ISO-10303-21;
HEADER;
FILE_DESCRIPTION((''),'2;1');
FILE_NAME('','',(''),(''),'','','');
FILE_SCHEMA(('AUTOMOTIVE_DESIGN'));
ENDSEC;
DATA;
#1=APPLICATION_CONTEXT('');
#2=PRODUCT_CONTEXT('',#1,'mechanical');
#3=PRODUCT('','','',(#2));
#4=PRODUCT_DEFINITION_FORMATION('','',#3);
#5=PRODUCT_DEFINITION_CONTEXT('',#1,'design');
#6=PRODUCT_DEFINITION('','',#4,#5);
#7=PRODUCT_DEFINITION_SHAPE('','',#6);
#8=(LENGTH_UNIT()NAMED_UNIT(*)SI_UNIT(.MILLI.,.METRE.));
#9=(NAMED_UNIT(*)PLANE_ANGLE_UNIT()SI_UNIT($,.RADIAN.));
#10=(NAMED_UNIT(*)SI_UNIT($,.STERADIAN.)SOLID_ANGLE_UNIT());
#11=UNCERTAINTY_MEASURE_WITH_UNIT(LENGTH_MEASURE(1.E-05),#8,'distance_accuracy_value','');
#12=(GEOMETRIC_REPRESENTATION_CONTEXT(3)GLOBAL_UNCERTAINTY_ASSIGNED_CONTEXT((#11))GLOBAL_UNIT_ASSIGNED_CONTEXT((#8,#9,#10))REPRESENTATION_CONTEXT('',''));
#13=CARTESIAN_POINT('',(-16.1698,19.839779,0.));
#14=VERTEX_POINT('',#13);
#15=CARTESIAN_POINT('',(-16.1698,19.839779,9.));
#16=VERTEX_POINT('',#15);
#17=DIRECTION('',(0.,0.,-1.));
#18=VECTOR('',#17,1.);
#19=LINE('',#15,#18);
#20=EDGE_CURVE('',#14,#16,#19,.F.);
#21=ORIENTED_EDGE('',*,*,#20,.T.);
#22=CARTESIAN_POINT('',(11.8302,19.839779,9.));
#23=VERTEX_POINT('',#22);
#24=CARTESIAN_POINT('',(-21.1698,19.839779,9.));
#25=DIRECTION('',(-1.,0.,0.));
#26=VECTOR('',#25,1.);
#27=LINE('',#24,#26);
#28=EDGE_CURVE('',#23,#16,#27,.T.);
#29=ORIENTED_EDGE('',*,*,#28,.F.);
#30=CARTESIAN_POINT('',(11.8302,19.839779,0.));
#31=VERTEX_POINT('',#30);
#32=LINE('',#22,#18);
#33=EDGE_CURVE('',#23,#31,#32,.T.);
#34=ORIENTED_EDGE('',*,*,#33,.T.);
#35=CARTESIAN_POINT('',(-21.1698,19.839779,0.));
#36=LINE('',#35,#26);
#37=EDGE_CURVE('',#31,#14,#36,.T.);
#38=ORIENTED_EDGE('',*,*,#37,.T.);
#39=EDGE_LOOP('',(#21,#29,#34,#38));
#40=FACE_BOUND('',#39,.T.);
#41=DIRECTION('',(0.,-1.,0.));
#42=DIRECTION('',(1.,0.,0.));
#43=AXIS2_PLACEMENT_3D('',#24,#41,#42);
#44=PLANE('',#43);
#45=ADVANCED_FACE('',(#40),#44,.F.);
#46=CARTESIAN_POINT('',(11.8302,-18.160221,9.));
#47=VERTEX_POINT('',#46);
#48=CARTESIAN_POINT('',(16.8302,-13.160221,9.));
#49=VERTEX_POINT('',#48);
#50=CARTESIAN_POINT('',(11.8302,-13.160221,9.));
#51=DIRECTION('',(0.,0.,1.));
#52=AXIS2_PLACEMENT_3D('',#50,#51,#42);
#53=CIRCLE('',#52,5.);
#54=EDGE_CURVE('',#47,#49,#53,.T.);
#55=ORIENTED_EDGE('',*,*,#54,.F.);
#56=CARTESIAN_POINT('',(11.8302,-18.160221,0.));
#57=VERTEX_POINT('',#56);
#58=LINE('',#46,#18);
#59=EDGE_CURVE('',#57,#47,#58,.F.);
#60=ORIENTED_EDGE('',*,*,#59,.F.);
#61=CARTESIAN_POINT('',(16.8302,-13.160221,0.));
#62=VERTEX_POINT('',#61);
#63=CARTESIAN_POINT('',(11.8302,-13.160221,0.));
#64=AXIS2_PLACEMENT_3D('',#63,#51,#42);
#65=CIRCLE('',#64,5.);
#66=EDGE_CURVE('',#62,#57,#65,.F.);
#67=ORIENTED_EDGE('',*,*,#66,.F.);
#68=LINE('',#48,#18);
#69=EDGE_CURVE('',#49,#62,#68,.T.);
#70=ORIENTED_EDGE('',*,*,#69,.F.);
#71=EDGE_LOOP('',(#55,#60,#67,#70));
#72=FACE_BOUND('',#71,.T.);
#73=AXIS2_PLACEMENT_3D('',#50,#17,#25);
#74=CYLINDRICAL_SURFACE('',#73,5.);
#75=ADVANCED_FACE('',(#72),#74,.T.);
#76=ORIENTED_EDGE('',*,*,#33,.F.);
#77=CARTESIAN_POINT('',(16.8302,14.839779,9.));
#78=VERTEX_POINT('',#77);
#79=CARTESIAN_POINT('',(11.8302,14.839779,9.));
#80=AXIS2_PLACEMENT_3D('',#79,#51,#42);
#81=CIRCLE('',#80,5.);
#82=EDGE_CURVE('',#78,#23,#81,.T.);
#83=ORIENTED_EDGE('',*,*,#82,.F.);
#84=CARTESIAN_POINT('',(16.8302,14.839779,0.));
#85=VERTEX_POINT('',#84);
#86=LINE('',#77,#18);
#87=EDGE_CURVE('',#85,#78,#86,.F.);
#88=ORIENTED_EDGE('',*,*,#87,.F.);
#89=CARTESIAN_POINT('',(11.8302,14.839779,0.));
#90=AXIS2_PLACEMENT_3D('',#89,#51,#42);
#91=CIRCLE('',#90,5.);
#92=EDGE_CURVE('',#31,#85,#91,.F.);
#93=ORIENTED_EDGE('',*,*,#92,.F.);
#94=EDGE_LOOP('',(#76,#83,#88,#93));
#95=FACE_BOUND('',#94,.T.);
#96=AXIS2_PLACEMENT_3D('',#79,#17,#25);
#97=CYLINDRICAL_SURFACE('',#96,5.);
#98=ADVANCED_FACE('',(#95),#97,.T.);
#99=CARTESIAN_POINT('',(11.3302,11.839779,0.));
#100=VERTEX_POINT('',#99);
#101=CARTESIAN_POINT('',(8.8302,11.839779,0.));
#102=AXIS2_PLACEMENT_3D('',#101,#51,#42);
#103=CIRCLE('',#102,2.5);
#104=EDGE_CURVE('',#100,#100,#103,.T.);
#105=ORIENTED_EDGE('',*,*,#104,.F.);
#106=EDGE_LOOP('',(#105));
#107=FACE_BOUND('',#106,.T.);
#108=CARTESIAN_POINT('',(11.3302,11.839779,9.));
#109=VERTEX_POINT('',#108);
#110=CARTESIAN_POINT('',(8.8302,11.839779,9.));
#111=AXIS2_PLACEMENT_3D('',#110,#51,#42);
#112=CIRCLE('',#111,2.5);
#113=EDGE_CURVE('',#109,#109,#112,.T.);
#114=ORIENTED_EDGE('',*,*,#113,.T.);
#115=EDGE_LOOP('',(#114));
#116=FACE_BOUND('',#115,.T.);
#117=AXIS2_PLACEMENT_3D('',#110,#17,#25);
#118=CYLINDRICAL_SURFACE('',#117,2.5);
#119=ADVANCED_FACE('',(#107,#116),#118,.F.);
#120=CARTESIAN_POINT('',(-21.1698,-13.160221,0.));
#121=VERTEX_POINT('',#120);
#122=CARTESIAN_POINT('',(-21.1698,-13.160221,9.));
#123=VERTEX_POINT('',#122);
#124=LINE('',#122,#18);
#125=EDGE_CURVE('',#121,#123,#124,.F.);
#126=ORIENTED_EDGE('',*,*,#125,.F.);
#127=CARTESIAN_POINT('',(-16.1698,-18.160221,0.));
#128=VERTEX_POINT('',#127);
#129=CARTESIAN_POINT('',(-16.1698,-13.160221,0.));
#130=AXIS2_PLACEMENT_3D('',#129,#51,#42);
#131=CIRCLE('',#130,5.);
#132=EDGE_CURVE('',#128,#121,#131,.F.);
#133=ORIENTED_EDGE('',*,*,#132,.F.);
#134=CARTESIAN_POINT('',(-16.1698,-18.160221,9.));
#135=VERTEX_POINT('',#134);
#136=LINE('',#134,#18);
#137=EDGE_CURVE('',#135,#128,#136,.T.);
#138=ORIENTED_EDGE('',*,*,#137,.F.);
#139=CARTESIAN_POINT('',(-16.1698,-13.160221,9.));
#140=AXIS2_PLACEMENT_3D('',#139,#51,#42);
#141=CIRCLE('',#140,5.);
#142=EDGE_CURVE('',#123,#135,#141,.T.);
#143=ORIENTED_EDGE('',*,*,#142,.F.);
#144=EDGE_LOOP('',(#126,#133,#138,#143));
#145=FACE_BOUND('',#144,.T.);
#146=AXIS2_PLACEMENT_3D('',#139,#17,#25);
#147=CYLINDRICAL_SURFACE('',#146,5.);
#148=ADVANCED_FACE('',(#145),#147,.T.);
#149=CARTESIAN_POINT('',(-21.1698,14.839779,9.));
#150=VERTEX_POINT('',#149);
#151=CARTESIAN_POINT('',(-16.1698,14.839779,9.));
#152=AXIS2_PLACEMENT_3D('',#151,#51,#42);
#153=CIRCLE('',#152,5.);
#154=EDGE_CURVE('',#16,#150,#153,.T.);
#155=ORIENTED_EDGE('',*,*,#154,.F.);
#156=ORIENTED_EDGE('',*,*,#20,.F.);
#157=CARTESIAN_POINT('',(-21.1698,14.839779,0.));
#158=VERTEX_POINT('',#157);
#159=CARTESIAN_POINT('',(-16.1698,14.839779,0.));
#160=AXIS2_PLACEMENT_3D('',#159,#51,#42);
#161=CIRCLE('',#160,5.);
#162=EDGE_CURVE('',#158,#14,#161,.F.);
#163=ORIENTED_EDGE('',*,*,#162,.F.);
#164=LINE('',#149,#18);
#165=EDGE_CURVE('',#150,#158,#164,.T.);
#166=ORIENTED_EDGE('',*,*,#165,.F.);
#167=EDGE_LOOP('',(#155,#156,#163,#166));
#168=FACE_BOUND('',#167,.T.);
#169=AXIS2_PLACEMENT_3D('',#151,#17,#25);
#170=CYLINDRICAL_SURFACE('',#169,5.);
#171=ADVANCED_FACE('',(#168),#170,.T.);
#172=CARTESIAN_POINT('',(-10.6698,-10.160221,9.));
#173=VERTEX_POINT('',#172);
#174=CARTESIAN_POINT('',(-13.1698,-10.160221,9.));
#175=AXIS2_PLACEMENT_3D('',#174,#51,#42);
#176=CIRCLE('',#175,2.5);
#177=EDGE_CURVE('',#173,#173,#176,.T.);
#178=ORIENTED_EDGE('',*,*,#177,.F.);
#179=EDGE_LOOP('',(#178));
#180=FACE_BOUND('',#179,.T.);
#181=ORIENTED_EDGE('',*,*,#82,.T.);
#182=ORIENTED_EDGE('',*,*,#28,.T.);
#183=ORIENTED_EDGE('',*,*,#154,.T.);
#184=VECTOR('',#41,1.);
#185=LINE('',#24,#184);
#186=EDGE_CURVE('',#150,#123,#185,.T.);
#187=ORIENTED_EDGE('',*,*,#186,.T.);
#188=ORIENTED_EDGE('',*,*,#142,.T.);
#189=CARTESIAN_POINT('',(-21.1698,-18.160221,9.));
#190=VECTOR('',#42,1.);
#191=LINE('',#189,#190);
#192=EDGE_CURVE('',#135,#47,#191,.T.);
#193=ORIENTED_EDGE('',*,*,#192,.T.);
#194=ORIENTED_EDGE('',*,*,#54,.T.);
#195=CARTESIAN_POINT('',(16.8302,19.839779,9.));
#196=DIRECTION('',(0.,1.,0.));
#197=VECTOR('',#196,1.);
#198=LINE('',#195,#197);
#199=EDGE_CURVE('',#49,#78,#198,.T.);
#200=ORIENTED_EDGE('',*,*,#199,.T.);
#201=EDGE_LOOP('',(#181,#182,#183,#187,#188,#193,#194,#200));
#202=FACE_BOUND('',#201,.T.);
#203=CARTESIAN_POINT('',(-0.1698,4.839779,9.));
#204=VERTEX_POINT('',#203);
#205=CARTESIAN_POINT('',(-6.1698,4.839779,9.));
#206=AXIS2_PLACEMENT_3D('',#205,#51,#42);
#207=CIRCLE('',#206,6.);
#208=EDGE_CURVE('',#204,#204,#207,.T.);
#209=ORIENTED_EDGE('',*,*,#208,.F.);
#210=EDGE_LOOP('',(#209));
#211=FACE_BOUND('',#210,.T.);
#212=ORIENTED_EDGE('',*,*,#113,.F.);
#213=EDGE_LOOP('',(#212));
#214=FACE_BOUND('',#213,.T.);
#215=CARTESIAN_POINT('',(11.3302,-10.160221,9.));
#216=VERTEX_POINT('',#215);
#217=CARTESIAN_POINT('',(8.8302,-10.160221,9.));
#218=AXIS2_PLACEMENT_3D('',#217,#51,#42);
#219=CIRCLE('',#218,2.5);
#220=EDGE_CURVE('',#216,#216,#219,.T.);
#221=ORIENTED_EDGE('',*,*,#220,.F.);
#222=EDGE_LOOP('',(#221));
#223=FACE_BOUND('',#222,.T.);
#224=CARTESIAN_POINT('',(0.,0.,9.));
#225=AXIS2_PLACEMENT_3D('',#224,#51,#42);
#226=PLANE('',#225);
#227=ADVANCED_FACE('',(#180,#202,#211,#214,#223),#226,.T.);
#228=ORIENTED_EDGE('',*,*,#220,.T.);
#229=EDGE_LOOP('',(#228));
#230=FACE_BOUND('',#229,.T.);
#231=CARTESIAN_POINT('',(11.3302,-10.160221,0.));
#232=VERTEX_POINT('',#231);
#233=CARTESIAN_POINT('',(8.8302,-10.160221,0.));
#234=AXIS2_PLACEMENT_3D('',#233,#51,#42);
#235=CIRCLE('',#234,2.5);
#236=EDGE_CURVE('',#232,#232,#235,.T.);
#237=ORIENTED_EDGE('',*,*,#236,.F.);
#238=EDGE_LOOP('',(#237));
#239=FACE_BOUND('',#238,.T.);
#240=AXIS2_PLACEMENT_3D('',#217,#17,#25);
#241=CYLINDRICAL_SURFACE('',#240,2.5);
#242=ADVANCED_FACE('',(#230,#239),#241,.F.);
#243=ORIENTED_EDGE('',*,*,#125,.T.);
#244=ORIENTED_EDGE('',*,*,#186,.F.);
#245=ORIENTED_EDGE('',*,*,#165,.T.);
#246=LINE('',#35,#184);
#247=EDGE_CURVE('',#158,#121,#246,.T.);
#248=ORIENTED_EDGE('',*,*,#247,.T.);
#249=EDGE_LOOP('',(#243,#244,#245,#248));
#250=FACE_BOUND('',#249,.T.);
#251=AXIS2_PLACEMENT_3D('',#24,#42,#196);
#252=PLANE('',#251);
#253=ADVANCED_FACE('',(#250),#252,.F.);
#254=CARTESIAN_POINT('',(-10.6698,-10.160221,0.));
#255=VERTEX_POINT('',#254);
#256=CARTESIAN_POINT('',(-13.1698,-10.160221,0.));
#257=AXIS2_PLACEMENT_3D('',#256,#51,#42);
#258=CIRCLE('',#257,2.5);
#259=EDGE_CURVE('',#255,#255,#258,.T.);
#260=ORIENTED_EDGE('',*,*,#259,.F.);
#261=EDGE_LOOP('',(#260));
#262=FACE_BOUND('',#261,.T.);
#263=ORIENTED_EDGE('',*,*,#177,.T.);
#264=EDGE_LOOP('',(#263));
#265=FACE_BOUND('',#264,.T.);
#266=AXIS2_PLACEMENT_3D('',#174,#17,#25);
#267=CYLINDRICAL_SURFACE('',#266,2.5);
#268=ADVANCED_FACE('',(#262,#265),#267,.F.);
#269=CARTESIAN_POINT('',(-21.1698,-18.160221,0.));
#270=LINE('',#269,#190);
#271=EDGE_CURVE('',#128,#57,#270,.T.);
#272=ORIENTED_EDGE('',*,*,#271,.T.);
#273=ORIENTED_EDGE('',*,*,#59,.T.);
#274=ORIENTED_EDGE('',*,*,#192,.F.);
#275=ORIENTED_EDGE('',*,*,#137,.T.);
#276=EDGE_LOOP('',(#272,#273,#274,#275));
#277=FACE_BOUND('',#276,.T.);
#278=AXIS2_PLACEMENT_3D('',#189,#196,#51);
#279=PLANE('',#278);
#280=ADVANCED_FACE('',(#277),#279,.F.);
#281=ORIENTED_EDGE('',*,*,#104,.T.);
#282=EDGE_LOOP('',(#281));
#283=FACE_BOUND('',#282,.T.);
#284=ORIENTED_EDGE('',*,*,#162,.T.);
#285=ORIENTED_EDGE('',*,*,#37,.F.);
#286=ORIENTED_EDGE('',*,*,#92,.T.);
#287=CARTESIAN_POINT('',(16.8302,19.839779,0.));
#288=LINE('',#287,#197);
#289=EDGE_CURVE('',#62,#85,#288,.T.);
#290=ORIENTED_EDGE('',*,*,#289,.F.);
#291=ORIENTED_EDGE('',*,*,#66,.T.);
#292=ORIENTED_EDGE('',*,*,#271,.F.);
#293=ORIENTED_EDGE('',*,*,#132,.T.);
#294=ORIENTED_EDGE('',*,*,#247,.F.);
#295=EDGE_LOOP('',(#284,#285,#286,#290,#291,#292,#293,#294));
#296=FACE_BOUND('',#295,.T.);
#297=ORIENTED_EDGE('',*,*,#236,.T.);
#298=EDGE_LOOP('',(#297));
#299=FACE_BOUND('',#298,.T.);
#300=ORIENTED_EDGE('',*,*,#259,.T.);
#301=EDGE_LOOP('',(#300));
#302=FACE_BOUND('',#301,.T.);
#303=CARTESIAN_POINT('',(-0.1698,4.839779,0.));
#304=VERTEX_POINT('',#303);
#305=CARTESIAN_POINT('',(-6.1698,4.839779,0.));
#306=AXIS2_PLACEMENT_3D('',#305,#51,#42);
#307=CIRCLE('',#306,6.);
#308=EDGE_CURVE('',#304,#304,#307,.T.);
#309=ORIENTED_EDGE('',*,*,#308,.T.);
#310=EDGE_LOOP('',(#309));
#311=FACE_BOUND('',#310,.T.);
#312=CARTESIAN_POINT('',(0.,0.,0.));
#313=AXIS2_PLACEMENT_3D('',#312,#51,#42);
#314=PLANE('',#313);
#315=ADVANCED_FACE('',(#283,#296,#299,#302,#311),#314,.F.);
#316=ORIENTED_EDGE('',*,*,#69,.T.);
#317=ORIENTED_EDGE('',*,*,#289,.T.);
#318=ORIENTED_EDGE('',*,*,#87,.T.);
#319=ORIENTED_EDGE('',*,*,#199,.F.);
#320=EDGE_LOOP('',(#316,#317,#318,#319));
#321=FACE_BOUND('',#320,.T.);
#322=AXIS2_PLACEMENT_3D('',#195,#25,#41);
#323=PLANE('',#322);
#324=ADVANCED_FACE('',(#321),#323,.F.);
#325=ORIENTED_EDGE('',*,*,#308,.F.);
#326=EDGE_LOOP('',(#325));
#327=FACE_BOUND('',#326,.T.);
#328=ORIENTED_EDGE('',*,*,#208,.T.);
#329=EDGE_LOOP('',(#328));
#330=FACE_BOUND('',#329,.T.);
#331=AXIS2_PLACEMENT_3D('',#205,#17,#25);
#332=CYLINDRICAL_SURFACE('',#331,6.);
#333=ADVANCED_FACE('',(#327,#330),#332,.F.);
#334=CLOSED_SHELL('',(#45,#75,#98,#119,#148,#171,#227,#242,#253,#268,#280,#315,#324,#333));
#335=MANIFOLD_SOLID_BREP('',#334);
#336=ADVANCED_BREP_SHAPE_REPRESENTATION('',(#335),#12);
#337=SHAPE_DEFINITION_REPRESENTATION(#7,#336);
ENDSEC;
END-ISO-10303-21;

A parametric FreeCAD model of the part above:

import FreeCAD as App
import Part
import Sketcher
from FreeCAD import Vector
Q = App.Units.Quantity


def edges_at(feature, points):
    """Names of the edges that pass closest to the given points."""
    edges = feature.Shape.Edges
    near = lambda p: min(range(len(edges)), key=lambda i: edges[i].distToShape(Part.Vertex(*p))[0])
    return sorted({f"Edge{near(p) + 1}" for p in points})


def add_polygon(sketch, points):
    """Adds a closed chain of lines whose ends are joined by coincident constraints."""
    first, n = sketch.GeometryCount, len(points)
    for a, b in zip(points, points[1:] + points[:1]):
        sketch.addGeometry(Part.LineSegment(App.Vector(*a, 0), App.Vector(*b, 0)), False)
    for i in range(n):
        sketch.addConstraint(Sketcher.Constraint("Coincident", first + i, 2, first + (i + 1) % n, 1))

doc = App.newDocument("Part")
params = doc.addObject("Spreadsheet::Sheet", "Params")
for row, (alias, value) in enumerate([
    ("sketch1_diameter", "5 mm"),
    ("sketch1_diameter2", "12 mm"),
    ("sketch1_width", "38 mm"),
    ("pad1_length", "9 mm"),
    ("fillet_radius", "5 mm"),
], start=1):
    params.set(f"A{row}", alias)
    params.set(f"B{row}", "=" + value)
    params.setAlias(f"B{row}", alias)

body = doc.addObject("PartDesign::Body", "Body")

sketch1 = body.newObject("Sketcher::SketchObject", "Sketch")
sketch1.AttachmentSupport = (doc.getObject("XY_Plane"), [""])
sketch1.MapMode = "FlatFace"
add_polygon(sketch1, [(-21.2, 19.8), (-21.2, -18.2), (16.8, -18.2), (16.8, 19.8)])
sketch1.addGeometry(Part.Circle(Vector(-13.2, -10.2, 0), Vector(0, 0, 1), 2.5), False)
sketch1.addGeometry(Part.Circle(Vector(8.8, -10.2, 0), Vector(0, 0, 1), 2.5), False)
sketch1.addGeometry(Part.Circle(Vector(-6.2, 4.8, 0), Vector(0, 0, 1), 6), False)
sketch1.addGeometry(Part.Circle(Vector(8.8, 11.8, 0), Vector(0, 0, 1), 2.5), False)
sketch1.addConstraint([
    Sketcher.Constraint("Vertical", 0),
    Sketcher.Constraint("Horizontal", 1),
    Sketcher.Constraint("Vertical", 2),
    Sketcher.Constraint("Horizontal", 3),
    Sketcher.Constraint("Equal", 4, 5),
    Sketcher.Constraint("Equal", 5, 7),
    Sketcher.Constraint("Horizontal", 4, 3, 5, 3),
    Sketcher.Constraint("Vertical", 5, 3, 7, 3),
    Sketcher.Constraint("Equal", 3, 0),
    Sketcher.Constraint("Diameter", 4, Q("5 mm")),
    Sketcher.Constraint("Diameter", 6, Q("12 mm")),
    Sketcher.Constraint("DistanceX", 1, 1, 1, 2, Q("38 mm")),
    Sketcher.Constraint("DistanceX", 4, 3, 5, 3, Q("22 mm")),
    Sketcher.Constraint("DistanceX", 4, 3, 6, 3, Q("7 mm")),
    Sketcher.Constraint("DistanceY", 4, 3, 6, 3, Q("15 mm")),
    Sketcher.Constraint("DistanceY", 6, 3, 7, 3, Q("7 mm")),
    Sketcher.Constraint("DistanceX", 0, 2, 4, 3, Q("8 mm")),
    Sketcher.Constraint("DistanceY", 0, 2, 4, 3, Q("8 mm")),
    Sketcher.Constraint("DistanceX", 4, 3, -1, 1, Q("13.1698 mm")),
    Sketcher.Constraint("DistanceY", 4, 3, -1, 1, Q("10.160221 mm")),
])
sketch1.setExpression("Constraints[13]", "Params.sketch1_diameter")
sketch1.setExpression("Constraints[14]", "Params.sketch1_diameter2")
sketch1.setExpression("Constraints[15]", "Params.sketch1_width")
pad1 = body.newObject("PartDesign::Pad", "Pad")
pad1.Profile = sketch1
pad1.setExpression("Length", "Params.pad1_length")
doc.recompute()

fillet = body.newObject("PartDesign::Fillet", "Fillet")
fillet.Base = (pad1, edges_at(pad1, [
    (-21.17, 19.84, 4.5),
    (16.83, 19.84, 4.5),
    (16.83, -18.16, 4.5),
    (-21.17, -18.16, 4.5),
]))
fillet.setExpression("Radius", "Params.fillet_radius")

doc.recompute()
